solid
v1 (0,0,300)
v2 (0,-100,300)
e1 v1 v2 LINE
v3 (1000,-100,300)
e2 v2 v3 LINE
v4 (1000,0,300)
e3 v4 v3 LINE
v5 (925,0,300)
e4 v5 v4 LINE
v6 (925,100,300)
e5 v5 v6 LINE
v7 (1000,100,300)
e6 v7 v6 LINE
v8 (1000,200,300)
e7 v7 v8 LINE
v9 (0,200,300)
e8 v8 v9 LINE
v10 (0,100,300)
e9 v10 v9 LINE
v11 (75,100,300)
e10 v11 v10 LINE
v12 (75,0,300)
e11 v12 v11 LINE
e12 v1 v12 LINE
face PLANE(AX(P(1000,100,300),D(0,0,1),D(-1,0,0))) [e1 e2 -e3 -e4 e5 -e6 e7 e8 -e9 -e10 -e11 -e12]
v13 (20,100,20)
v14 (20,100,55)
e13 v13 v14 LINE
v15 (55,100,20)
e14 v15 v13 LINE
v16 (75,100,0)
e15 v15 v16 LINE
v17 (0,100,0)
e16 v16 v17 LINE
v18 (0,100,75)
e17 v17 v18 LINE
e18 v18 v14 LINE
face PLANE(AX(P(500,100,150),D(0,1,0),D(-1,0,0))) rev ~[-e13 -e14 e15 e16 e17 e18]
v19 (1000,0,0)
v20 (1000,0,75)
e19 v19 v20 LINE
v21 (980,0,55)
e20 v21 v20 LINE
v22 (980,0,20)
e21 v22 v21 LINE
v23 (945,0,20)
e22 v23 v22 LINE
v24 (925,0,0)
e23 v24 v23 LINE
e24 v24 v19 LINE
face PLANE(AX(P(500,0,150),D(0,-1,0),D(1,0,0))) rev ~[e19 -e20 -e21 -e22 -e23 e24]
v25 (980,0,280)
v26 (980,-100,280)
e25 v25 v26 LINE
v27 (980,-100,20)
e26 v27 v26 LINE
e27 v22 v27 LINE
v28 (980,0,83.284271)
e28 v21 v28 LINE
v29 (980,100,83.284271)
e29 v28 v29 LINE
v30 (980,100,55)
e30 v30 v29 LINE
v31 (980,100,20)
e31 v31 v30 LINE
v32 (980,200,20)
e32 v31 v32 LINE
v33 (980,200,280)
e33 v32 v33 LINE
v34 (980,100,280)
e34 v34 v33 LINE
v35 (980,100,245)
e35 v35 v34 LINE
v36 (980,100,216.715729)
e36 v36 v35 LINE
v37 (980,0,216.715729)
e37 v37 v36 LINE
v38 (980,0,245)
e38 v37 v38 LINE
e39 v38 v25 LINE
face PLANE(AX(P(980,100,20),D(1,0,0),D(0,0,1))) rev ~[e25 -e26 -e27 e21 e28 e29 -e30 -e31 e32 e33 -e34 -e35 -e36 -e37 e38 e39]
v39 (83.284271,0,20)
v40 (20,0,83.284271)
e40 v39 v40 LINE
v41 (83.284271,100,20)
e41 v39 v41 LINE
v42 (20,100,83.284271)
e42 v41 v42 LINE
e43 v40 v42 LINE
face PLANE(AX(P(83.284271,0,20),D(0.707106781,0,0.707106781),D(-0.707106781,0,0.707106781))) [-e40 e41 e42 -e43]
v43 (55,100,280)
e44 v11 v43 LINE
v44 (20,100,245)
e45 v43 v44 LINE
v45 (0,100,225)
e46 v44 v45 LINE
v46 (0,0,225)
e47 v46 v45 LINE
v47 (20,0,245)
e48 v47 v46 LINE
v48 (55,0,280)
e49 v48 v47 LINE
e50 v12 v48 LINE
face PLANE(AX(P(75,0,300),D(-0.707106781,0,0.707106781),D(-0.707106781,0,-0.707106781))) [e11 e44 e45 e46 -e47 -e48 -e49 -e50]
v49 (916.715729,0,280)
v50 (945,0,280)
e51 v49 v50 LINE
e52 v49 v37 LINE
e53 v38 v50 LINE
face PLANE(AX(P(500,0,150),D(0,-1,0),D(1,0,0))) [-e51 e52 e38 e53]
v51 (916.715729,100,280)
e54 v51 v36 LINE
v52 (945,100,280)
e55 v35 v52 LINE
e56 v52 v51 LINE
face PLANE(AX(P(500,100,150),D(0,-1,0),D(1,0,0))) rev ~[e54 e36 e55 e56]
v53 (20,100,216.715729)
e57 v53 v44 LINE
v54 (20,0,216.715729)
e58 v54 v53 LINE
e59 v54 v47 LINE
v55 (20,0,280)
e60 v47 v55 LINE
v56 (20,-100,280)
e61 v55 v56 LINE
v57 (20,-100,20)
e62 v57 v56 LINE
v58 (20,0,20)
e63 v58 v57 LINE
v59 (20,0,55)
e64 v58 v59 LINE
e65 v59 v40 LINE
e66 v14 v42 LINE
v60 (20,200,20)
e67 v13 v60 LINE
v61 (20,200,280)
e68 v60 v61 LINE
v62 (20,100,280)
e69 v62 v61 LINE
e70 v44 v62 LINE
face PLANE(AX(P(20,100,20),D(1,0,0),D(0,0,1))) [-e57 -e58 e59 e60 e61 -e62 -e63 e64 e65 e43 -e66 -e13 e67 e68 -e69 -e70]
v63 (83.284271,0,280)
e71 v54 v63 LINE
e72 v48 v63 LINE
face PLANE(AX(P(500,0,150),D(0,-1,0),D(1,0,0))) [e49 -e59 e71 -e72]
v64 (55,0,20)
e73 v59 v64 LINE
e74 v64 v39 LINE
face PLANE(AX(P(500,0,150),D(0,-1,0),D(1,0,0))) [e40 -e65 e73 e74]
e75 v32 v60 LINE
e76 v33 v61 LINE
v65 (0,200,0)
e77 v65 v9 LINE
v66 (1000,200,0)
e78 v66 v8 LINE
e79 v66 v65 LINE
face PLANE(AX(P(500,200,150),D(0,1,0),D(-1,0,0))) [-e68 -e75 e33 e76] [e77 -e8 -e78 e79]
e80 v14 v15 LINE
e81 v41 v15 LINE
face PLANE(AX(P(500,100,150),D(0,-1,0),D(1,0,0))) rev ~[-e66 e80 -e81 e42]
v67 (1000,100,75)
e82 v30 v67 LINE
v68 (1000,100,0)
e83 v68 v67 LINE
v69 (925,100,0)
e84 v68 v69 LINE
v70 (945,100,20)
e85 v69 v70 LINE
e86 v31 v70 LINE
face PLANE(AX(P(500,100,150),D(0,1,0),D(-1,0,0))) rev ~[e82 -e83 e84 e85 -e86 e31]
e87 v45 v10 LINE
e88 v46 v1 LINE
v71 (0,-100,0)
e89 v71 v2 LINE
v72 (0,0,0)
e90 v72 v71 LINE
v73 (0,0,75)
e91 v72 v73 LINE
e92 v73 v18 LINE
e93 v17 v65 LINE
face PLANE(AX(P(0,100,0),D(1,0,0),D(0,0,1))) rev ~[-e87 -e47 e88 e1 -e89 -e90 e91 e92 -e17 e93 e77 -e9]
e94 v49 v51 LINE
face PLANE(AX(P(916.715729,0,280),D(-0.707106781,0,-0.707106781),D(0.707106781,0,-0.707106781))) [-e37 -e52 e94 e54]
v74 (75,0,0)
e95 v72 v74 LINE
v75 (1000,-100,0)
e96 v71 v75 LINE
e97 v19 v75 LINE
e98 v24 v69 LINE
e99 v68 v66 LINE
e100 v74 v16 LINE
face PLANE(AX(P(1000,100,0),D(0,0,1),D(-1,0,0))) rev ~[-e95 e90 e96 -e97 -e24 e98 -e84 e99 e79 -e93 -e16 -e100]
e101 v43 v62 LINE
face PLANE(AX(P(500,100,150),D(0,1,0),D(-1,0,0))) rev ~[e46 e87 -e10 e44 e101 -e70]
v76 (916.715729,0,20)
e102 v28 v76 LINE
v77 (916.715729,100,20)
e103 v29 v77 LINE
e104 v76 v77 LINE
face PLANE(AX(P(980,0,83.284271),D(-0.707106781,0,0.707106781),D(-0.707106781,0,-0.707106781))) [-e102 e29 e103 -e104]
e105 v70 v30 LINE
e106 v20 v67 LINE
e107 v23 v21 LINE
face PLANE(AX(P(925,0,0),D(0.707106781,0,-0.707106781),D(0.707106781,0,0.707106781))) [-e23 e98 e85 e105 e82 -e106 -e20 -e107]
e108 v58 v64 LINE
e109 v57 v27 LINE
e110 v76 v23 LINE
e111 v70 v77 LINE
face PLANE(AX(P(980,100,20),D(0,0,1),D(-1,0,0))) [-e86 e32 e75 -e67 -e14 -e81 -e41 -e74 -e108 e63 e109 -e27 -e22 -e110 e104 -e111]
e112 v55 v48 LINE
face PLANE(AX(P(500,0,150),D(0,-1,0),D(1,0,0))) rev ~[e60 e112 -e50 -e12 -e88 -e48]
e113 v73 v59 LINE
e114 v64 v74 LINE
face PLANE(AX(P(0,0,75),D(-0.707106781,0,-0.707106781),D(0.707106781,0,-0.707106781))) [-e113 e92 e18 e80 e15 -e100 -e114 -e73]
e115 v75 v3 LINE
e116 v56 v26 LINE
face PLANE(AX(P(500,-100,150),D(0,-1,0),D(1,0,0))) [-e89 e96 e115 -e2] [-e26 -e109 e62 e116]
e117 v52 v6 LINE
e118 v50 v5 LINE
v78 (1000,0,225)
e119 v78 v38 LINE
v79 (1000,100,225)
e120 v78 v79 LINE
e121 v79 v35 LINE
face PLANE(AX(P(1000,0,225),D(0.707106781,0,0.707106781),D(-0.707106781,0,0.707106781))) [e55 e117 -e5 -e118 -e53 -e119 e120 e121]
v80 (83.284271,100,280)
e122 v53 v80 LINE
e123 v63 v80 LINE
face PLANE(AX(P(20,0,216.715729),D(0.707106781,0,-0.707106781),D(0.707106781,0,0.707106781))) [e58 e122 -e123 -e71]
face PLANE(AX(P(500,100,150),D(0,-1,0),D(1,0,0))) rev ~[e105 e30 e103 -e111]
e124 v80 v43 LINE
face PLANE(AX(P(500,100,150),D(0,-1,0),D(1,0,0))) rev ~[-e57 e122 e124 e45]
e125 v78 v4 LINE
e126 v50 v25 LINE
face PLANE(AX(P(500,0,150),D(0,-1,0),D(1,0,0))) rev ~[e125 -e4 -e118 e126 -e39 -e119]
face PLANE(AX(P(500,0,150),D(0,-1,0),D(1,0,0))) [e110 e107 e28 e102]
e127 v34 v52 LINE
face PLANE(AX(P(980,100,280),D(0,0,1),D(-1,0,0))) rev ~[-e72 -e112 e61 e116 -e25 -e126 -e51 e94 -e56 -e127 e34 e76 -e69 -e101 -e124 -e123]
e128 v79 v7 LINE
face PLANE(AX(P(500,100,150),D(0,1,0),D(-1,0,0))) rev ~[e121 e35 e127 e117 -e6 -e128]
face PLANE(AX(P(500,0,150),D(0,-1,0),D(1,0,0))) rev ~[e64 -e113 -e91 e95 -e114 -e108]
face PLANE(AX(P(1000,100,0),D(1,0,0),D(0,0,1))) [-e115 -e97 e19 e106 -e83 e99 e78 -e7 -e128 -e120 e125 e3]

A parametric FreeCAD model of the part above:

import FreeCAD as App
import Part
import Sketcher
Q = App.Units.Quantity


def add_polygon(sketch, points):
    """Adds a closed chain of lines whose ends are joined by coincident constraints."""
    first, n = sketch.GeometryCount, len(points)
    for a, b in zip(points, points[1:] + points[:1]):
        sketch.addGeometry(Part.LineSegment(App.Vector(*a, 0), App.Vector(*b, 0)), False)
    for i in range(n):
        sketch.addConstraint(Sketcher.Constraint("Coincident", first + i, 2, first + (i + 1) % n, 1))

doc = App.newDocument("Part")
params = doc.addObject("Spreadsheet::Sheet", "Params")
for row, (alias, value) in enumerate([
    ("sketch1_width", "1000 mm"),
    ("sketch1_width2", "960 mm"),
    ("sketch1_height", "300 mm"),
    ("sketch1_height2", "260 mm"),
    ("pad1_length", "100 mm"),
    ("sketch2_width", "850 mm"),
    ("sketch2_height", "150 mm"),
    ("pad2_length", "100 mm"),
    ("sketch3_width", "1000 mm"),
    ("sketch3_width2", "960 mm"),
    ("sketch3_height", "300 mm"),
    ("sketch3_height2", "260 mm"),
    ("pad3_length", "100 mm"),
], start=1):
    params.set(f"A{row}", alias)
    params.set(f"B{row}", "=" + value)
    params.setAlias(f"B{row}", alias)

body = doc.addObject("PartDesign::Body", "Body")

# Sketch on XZ plane
sketch1 = doc.addObject("Sketcher::SketchObject", "Sketch")
body.addObject(sketch1)
sketch1.AttachmentSupport = (doc.XZ_Plane, [""])
sketch1.MapMode = "FlatFace"
add_polygon(sketch1, [(0, 300), (0, 0), (1000, 0), (1000, 300)])  # lines 0-3
add_polygon(sketch1, [(980, 20), (20, 20), (20, 280), (980, 280)])  # lines 4-7
sketch1.addConstraint([
    Sketcher.Constraint("Vertical", 0),
    Sketcher.Constraint("Horizontal", 1),
    Sketcher.Constraint("Vertical", 2),
    Sketcher.Constraint("Horizontal", 3),
    Sketcher.Constraint("Horizontal", 4),
    Sketcher.Constraint("Vertical", 5),
    Sketcher.Constraint("Horizontal", 6),
    Sketcher.Constraint("Vertical", 7),
    Sketcher.Constraint("Coincident", 0, 2, -1, 1),
    Sketcher.Constraint("DistanceX", 1, 1, 1, 2, Q("1000 mm")),
    Sketcher.Constraint("DistanceX", 4, 2, 4, 1, Q("960 mm")),
    Sketcher.Constraint("DistanceY", 0, 2, 0, 1, Q("300 mm")),
    Sketcher.Constraint("DistanceY", 5, 1, 5, 2, Q("260 mm")),
    Sketcher.Constraint("DistanceX", -1, 1, 4, 2, Q("20 mm")),
    Sketcher.Constraint("DistanceY", -1, 1, 4, 2, Q("20 mm")),
])
sketch1.setExpression("Constraints[17]", "Params.sketch1_width")
sketch1.setExpression("Constraints[18]", "Params.sketch1_width2")
sketch1.setExpression("Constraints[19]", "Params.sketch1_height")
sketch1.setExpression("Constraints[20]", "Params.sketch1_height2")
pad1 = doc.addObject("PartDesign::Pad", "Pad")
body.addObject(pad1)
pad1.Profile = sketch1
pad1.setExpression("Length", "Params.pad1_length")

# Sketch on XZ plane
sketch2 = doc.addObject("Sketcher::SketchObject", "Sketch001")
body.addObject(sketch2)
sketch2.AttachmentSupport = (doc.XZ_Plane, [""])
sketch2.MapMode = "FlatFace"
add_polygon(sketch2, [(0, 225), (0, 75), (75, 0), (925, 0), (1000, 75), (1000, 225), (925, 300), (75, 300)])  # lines 0-7
add_polygon(sketch2, [(83.284271, 20), (20, 83.284271), (20, 216.715729), (83.284271, 280), (916.715729, 280), (980, 216.715729), (980, 83.284271), (916.715729, 20)])  # lines 8-15
sketch2.addConstraint([
    Sketcher.Constraint("Vertical", 0),
    Sketcher.Constraint("Horizontal", 2),
    Sketcher.Constraint("Vertical", 4),
    Sketcher.Constraint("Horizontal", 6),
    Sketcher.Constraint("Vertical", 9),
    Sketcher.Constraint("Horizontal", 11),
    Sketcher.Constraint("Vertical", 13),
    Sketcher.Constraint("Horizontal", 15),
    Sketcher.Constraint("PointOnObject", 0, 2, -2),
    Sketcher.Constraint("PointOnObject", 1, 2, -1),
    Sketcher.Constraint("Perpendicular", 1, 3),
    Sketcher.Constraint("Perpendicular", 3, 5),
    Sketcher.Constraint("Perpendicular", 5, 7),
    Sketcher.Constraint("Perpendicular", 7, 8),
    Sketcher.Constraint("Perpendicular", 8, 10),
    Sketcher.Constraint("Perpendicular", 10, 12),
    Sketcher.Constraint("Perpendicular", 12, 14),
    Sketcher.Constraint("Horizontal", 0, 2, 3, 2),
    Sketcher.Constraint("Horizontal", 4, 2, 7, 2),
    Sketcher.Constraint("Horizontal", 9, 2, 12, 2),
    Sketcher.Constraint("Horizontal", 8, 2, 13, 2),
    Sketcher.Constraint("Vertical", 2, 2, 5, 2),
    Sketcher.Constraint("Vertical", 1, 2, 6, 2),
    Sketcher.Constraint("Vertical", 11, 2, 14, 2),
    Sketcher.Constraint("DistanceX", 2, 1, 2, 2, Q("850 mm")),
    Sketcher.Constraint("DistanceY", 0, 2, 0, 1, Q("150 mm")),
    Sketcher.Constraint("DistanceY", -1, 1, 0, 2, Q("75 mm")),
    Sketcher.Constraint("DistanceX", -1, 1, 8, 2, Q("20 mm")),
    Sketcher.Constraint("DistanceY", -1, 1, 10, 2, Q("280 mm")),
    Sketcher.Constraint("DistanceX", -1, 1, 12, 2, Q("980 mm")),
    Sketcher.Constraint("DistanceY", -1, 1, 14, 2, Q("20 mm")),
    Sketcher.Constraint("DistanceX", 11, 1, 11, 2, Q("833.431458 mm")),
])
sketch2.setExpression("Constraints[40]", "Params.sketch2_width")
sketch2.setExpression("Constraints[41]", "Params.sketch2_height")
pad2 = doc.addObject("PartDesign::Pad", "Pad001")
body.addObject(pad2)
pad2.Profile = sketch2
pad2.setExpression("Length", "Params.pad2_length")
pad2.Reversed = True

# Sketch on XZ plane
sketch3 = doc.addObject("Sketcher::SketchObject", "Sketch002")
body.addObject(sketch3)
sketch3.AttachmentSupport = (doc.XZ_Plane, [""])
sketch3.MapMode = "FlatFace"
sketch3.AttachmentOffset = App.Placement(App.Vector(0, 0, -100), App.Rotation())
add_polygon(sketch3, [(1000, 300), (1000, 0), (0, 0), (0, 300)])  # lines 0-3
add_polygon(sketch3, [(20, 20), (980, 20), (980, 280), (20, 280)])  # lines 4-7
sketch3.addConstraint([
    Sketcher.Constraint("Vertical", 0),
    Sketcher.Constraint("Horizontal", 1),
    Sketcher.Constraint("Vertical", 2),
    Sketcher.Constraint("Horizontal", 3),
    Sketcher.Constraint("Horizontal", 4),
    Sketcher.Constraint("Vertical", 5),
    Sketcher.Constraint("Horizontal", 6),
    Sketcher.Constraint("Vertical", 7),
    Sketcher.Constraint("Coincident", 1, 2, -1, 1),
    Sketcher.Constraint("DistanceX", 1, 2, 1, 1, Q("1000 mm")),
    Sketcher.Constraint("DistanceX", 4, 1, 4, 2, Q("960 mm")),
    Sketcher.Constraint("DistanceY", 0, 2, 0, 1, Q("300 mm")),
    Sketcher.Constraint("DistanceY", 5, 1, 5, 2, Q("260 mm")),
    Sketcher.Constraint("DistanceX", -1, 1, 4, 2, Q("980 mm")),
    Sketcher.Constraint("DistanceY", -1, 1, 4, 2, Q("20 mm")),
])
sketch3.setExpression("Constraints[17]", "Params.sketch3_width")
sketch3.setExpression("Constraints[18]", "Params.sketch3_width2")
sketch3.setExpression("Constraints[19]", "Params.sketch3_height")
sketch3.setExpression("Constraints[20]", "Params.sketch3_height2")
pad3 = doc.addObject("PartDesign::Pad", "Pad002")
body.addObject(pad3)
pad3.Profile = sketch3
pad3.setExpression("Length", "Params.pad3_length")
pad3.Reversed = True

doc.recompute()
